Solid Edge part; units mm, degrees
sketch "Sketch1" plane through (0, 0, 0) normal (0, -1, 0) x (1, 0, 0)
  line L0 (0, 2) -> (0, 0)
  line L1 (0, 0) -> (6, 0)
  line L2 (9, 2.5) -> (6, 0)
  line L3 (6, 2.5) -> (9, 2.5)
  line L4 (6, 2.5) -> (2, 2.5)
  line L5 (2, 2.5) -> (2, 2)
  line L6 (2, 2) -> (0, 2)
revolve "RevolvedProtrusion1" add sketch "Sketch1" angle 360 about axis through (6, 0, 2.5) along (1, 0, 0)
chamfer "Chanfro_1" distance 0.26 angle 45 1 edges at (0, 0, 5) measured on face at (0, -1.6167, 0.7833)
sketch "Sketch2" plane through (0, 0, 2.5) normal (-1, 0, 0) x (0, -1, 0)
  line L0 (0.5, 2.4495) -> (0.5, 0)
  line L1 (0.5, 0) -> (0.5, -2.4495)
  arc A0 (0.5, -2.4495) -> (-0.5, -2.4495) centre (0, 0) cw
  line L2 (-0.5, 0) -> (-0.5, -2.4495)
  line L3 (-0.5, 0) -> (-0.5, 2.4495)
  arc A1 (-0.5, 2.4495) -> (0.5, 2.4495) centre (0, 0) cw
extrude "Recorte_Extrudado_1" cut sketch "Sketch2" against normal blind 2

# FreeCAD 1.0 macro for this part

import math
import FreeCAD as App
import Part
import Sketcher


def edges_at(feature, points):
    """Names of the edges that pass closest to the given points."""
    edges = feature.Shape.Edges
    near = lambda p: min(range(len(edges)), key=lambda i: edges[i].distToShape(Part.Vertex(*p))[0])
    return sorted({f"Edge{near(p) + 1}" for p in points})


def add_polygon(sketch, points):
    """Adds a closed chain of lines whose ends are joined by coincident constraints."""
    first, n = sketch.GeometryCount, len(points)
    for a, b in zip(points, points[1:] + points[:1]):
        sketch.addGeometry(Part.LineSegment(App.Vector(*a, 0), App.Vector(*b, 0)), False)
    for i in range(n):
        sketch.addConstraint(Sketcher.Constraint("Coincident", first + i, 2, first + (i + 1) % n, 1))

doc = App.newDocument("Part")
body = doc.addObject("PartDesign::Body", "Body")

# Sketch on XZ plane
sketch1 = body.newObject("Sketcher::SketchObject", "Sketch")
sketch1.AttachmentSupport = (doc.getObject("XZ_Plane"), [""])
sketch1.MapMode = "FlatFace"
add_polygon(sketch1, [(2, 2), (0, 2), (0, 0), (6, 0), (9, 2.5), (2, 2.5)])  # lines 0-5
sketch1.addGeometry(Part.LineSegment(App.Vector(0, 2.5, 0), App.Vector(9, 2.5, 0)), True)  # axis
sketch1.addConstraint(Sketcher.Constraint("Horizontal", 0))
sketch1.addConstraint(Sketcher.Constraint("Vertical", 1))
sketch1.addConstraint(Sketcher.Constraint("Horizontal", 2))
sketch1.addConstraint(Sketcher.Constraint("Horizontal", 4))
sketch1.addConstraint(Sketcher.Constraint("Vertical", 5))
sketch1.addConstraint(Sketcher.Constraint("Horizontal", 6))
sketch1.addConstraint(Sketcher.Constraint("Coincident", 1, 2, -1, 1))
sketch1.addConstraint(Sketcher.Constraint("Coincident", 6, 2, 3, 2))
sketch1.addConstraint(Sketcher.Constraint("PointOnObject", 6, 1, -2))
sketch1.addConstraint(Sketcher.Constraint("Equal", 0, 1))
sketch1.addConstraint(Sketcher.Constraint("DistanceX", 0, 2, 0, 1, 2.0))
sketch1.addConstraint(Sketcher.Constraint("DistanceX", 2, 1, 2, 2, 6.0))
sketch1.addConstraint(Sketcher.Constraint("DistanceX", 4, 2, 4, 1, 7.0))
sketch1.addConstraint(Sketcher.Constraint("DistanceY", 5, 2, 5, 1, 0.5))
revolution = body.newObject("PartDesign::Revolution", "Revolution")
revolution.Profile = sketch1
revolution.ReferenceAxis = (sketch1, ["Axis0"])
revolution.Angle = 360
doc.recompute()

chamfer = body.newObject("PartDesign::Chamfer", "Chamfer")
chamfer.Base = (revolution, edges_at(revolution, [(0, 0, 5)]))
chamfer.Size = 0.26

# Sketch on YZ plane
sketch2 = body.newObject("Sketcher::SketchObject", "Sketch001")
sketch2.AttachmentSupport = (doc.getObject("YZ_Plane"), [""])
sketch2.MapMode = "FlatFace"
sketch2.addGeometry(Part.LineSegment(App.Vector(-0.5, 0.1, 0), App.Vector(-0.5, 4.9, 0)), False)
sketch2.addGeometry(Part.ArcOfCircle(Part.Circle(App.Vector(0, 2.5, 0), App.Vector(0, 0, 1), 2.5), math.radians(78), math.radians(102)), False)
sketch2.addGeometry(Part.LineSegment(App.Vector(0.5, 4.9, 0), App.Vector(0.5, 0.1, 0)), False)
sketch2.addGeometry(Part.ArcOfCircle(Part.Circle(App.Vector(0, 2.5, 0), App.Vector(0, 0, 1), 2.5), math.radians(-102), math.radians(-78)), False)
sketch2.addConstraint(Sketcher.Constraint("Coincident", 0, 2, 1, 2))
sketch2.addConstraint(Sketcher.Constraint("Coincident", 1, 1, 2, 1))
sketch2.addConstraint(Sketcher.Constraint("Coincident", 2, 2, 3, 2))
sketch2.addConstraint(Sketcher.Constraint("Coincident", 3, 1, 0, 1))
sketch2.addConstraint(Sketcher.Constraint("Vertical", 0))
sketch2.addConstraint(Sketcher.Constraint("Vertical", 2))
sketch2.addConstraint(Sketcher.Constraint("Coincident", 3, 3, 1, 3))
sketch2.addConstraint(Sketcher.Constraint("Equal", 1, 3))
sketch2.addConstraint(Sketcher.Constraint("Symmetric", 0, 2, 1, 1, -2))
sketch2.addConstraint(Sketcher.Constraint("Radius", 1, 2.5))
sketch2.addConstraint(Sketcher.Constraint("DistanceX", 0, 2, 1, 1, 1.0))
sketch2.addConstraint(Sketcher.Constraint("DistanceY", -1, 1, 1, 3, 2.5))
pocket1 = body.newObject("PartDesign::Pocket", "Pocket")
pocket1.Profile = sketch2
pocket1.Length = 2
pocket1.Reversed = True

doc.recompute()
